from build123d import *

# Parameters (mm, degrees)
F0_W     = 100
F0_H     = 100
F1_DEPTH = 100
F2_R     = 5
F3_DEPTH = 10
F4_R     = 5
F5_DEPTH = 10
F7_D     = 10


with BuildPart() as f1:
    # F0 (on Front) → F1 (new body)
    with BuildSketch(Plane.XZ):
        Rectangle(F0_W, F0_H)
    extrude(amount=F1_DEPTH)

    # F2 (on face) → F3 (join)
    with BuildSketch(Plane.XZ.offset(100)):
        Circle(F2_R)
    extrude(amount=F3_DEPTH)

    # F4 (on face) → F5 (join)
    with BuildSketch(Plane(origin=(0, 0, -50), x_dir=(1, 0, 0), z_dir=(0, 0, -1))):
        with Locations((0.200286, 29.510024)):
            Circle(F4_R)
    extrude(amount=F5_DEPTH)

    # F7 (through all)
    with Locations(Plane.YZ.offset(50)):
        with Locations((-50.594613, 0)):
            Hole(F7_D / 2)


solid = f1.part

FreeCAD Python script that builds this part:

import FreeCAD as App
import Part
import Sketcher

V = App.Vector
Q = App.Units.Quantity


def add_polygon(sketch, points):
    """Adds a closed chain of lines whose ends are joined by coincident constraints."""
    first, n = sketch.GeometryCount, len(points)
    for a, b in zip(points, points[1:] + points[:1]):
        sketch.addGeometry(Part.LineSegment(App.Vector(*a, 0), App.Vector(*b, 0)), False)
    for i in range(n):
        sketch.addConstraint(Sketcher.Constraint("Coincident", first + i, 2, first + (i + 1) % n, 1))

doc = App.newDocument("Part")
body = doc.addObject("PartDesign::Body", "Body")

# Sketch on XZ plane
sketch1 = body.newObject("Sketcher::SketchObject", "Sketch")
sketch1.AttachmentSupport = (doc.getObject("XZ_Plane"), [""])
sketch1.MapMode = "FlatFace"
add_polygon(sketch1, [(-50, 50), (-50, -50), (50, -50), (50, 50)])  # lines 0-3
sketch1.addConstraint([
    Sketcher.Constraint("Vertical", 0),
    Sketcher.Constraint("Horizontal", 1),
    Sketcher.Constraint("Vertical", 2),
    Sketcher.Constraint("Horizontal", 3),
    Sketcher.Constraint("Symmetric", 0, 2, 2, 2, -1, 1),
    Sketcher.Constraint("Equal", 3, 0),
    Sketcher.Constraint("DistanceX", 1, 1, 1, 2, Q("100 mm")),
])
pad1 = body.newObject("PartDesign::Pad", "Pad")
pad1.Profile = sketch1
pad1.Length = 100

# Sketch on XZ plane
sketch2 = body.newObject("Sketcher::SketchObject", "Sketch001")
sketch2.AttachmentSupport = (doc.getObject("XZ_Plane"), [""])
sketch2.MapMode = "FlatFace"
sketch2.AttachmentOffset = App.Placement(V(0, 0, 100), App.Rotation())
sketch2.addGeometry(Part.Circle(V(0, 0, 0), V(0, 0, 1), 5), False)
sketch2.addConstraint([
    Sketcher.Constraint("Coincident", 0, 3, -1, 1),
    Sketcher.Constraint("Diameter", 0, Q("10 mm")),
])
pad2 = body.newObject("PartDesign::Pad", "Pad001")
pad2.Profile = sketch2
pad2.Length = 10

# Sketch on XY plane
sketch3 = body.newObject("Sketcher::SketchObject", "Sketch002")
sketch3.AttachmentSupport = (doc.getObject("XY_Plane"), [""])
sketch3.MapMode = "FlatFace"
sketch3.AttachmentOffset = App.Placement(V(0, 0, -50), App.Rotation())
sketch3.addGeometry(Part.Circle(V(0, -30, 0), V(0, 0, 1), 5), False)
sketch3.addConstraint([
    Sketcher.Constraint("Diameter", 0, Q("10 mm")),
    Sketcher.Constraint("DistanceX", -1, 1, 0, 3, Q("0.200286 mm")),
    Sketcher.Constraint("DistanceY", 0, 3, -1, 1, Q("29.510024 mm")),
])
pad3 = body.newObject("PartDesign::Pad", "Pad002")
pad3.Profile = sketch3
pad3.Length = 10
pad3.Reversed = True

# Sketch on YZ plane
sketch4 = body.newObject("Sketcher::SketchObject", "Sketch003")
sketch4.AttachmentSupport = (doc.getObject("YZ_Plane"), [""])
sketch4.MapMode = "FlatFace"
sketch4.AttachmentOffset = App.Placement(V(0, 0, 50), App.Rotation())
sketch4.addGeometry(Part.Circle(V(-51, 0, 0), V(0, 0, 1), 5), False)
sketch4.addConstraint([
    Sketcher.Constraint("PointOnObject", 0, 3, -1),
    Sketcher.Constraint("Diameter", 0, Q("10 mm")),
    Sketcher.Constraint("DistanceX", 0, 3, -1, 1, Q("50.594613 mm")),
])
doc.recompute()
hole = body.newObject("PartDesign::Hole", "Hole")
hole.Profile = sketch4
hole.ThreadType = "None"
hole.Diameter = 10
hole.DepthType = "ThroughAll"

doc.recompute()
